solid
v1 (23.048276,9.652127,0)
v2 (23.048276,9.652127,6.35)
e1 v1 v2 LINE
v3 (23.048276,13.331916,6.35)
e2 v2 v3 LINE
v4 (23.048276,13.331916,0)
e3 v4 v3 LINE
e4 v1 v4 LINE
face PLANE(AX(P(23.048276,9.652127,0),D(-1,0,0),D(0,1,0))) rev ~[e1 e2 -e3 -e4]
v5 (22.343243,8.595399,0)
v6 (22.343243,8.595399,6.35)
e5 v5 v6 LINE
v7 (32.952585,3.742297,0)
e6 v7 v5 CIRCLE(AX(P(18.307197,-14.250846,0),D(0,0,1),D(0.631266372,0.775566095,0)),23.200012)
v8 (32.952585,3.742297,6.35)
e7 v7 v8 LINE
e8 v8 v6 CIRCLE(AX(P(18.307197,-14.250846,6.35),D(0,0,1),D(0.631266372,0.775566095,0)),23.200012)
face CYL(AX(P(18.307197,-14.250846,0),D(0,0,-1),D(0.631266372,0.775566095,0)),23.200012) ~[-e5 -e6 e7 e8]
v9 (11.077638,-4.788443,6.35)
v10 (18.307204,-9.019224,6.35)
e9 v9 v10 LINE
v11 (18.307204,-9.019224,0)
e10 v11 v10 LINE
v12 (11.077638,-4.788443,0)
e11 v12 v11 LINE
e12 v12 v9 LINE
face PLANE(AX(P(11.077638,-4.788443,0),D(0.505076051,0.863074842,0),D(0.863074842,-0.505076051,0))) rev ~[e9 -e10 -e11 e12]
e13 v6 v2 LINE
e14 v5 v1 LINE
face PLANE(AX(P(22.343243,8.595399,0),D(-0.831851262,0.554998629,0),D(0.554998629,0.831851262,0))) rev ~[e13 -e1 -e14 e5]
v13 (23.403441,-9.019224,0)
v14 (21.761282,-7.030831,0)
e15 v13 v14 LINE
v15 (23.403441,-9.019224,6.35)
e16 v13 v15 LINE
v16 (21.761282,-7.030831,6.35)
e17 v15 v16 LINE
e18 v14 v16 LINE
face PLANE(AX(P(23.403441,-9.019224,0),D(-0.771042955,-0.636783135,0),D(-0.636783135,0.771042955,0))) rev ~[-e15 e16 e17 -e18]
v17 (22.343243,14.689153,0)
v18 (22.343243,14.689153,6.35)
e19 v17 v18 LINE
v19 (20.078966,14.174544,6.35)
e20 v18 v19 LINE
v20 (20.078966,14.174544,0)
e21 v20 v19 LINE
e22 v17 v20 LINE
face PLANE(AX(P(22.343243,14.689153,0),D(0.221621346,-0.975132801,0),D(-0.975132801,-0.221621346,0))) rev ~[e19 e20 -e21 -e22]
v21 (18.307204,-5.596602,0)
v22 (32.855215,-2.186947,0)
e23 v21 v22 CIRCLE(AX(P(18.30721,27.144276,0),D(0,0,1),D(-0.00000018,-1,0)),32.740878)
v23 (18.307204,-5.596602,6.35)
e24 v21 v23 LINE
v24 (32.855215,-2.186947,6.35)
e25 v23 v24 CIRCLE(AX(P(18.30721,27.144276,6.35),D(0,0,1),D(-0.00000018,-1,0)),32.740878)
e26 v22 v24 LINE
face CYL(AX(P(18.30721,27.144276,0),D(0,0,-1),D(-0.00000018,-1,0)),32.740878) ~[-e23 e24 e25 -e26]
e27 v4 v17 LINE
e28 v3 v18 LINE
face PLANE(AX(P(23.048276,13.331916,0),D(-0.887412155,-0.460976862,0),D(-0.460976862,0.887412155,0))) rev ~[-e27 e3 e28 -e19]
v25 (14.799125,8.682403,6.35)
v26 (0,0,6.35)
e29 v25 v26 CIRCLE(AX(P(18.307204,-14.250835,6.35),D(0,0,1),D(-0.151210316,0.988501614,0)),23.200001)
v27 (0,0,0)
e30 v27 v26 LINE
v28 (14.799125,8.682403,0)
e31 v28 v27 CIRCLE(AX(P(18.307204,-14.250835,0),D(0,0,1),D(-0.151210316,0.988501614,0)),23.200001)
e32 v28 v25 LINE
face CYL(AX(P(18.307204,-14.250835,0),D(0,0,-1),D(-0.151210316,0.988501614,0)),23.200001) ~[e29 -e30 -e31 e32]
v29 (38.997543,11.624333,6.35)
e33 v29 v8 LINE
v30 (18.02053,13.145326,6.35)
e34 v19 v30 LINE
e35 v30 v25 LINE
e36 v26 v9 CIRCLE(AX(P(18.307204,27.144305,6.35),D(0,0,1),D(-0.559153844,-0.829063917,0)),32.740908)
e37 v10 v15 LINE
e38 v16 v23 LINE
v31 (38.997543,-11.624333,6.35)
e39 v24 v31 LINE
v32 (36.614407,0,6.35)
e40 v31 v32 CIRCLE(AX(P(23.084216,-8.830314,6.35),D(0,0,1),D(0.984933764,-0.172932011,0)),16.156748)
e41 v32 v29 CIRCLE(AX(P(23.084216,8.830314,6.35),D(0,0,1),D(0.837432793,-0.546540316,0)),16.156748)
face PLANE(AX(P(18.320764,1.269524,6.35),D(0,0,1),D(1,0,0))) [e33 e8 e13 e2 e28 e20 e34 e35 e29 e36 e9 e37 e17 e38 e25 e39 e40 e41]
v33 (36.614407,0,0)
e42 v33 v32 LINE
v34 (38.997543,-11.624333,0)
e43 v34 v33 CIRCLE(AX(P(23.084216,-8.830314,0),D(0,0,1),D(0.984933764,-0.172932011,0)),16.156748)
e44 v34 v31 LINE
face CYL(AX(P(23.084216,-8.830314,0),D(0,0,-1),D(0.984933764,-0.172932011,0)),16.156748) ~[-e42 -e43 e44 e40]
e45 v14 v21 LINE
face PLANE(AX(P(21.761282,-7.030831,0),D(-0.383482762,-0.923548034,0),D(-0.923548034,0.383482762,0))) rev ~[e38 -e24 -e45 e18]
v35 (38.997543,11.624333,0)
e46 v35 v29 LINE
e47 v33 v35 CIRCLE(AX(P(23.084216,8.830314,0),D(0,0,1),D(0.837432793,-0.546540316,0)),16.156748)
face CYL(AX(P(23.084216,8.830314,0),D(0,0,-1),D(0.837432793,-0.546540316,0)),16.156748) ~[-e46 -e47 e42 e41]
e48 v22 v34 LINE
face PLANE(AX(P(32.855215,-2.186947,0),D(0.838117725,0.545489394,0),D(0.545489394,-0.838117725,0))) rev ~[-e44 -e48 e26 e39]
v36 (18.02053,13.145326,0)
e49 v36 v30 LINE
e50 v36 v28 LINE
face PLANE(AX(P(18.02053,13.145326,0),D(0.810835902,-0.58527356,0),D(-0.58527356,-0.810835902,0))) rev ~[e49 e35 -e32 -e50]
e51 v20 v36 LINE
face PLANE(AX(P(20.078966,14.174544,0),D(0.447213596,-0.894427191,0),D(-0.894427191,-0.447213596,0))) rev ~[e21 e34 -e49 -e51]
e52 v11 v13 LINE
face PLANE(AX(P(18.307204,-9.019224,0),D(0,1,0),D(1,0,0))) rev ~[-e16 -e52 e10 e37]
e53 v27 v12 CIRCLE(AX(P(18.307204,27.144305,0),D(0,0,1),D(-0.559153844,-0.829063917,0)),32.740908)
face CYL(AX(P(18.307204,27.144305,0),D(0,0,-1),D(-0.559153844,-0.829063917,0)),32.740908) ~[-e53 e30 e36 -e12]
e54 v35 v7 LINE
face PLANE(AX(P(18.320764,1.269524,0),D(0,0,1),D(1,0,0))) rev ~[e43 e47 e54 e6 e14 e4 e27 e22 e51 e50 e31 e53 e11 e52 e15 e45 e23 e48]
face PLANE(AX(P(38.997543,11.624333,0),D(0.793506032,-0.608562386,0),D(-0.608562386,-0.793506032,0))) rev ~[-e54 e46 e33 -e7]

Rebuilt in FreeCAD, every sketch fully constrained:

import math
import FreeCAD as App
import Part
import Sketcher
from FreeCAD import Vector
Q = App.Units.Quantity

doc = App.newDocument("Part")
body = doc.addObject("PartDesign::Body", "Body")

# Sketch on XY plane
sketch1 = body.newObject("Sketcher::SketchObject", "Sketch")
sketch1.AttachmentSupport = (doc.getObject("XY_Plane"), [""])
sketch1.MapMode = "FlatFace"
sketch1.addGeometry([
    Part.ArcOfCircle(Part.Circle(Vector(18.3, -14.3, 0), Vector(0, 0, 1), 23.2), math.radians(51), math.radians(80)),  # 0
    Part.LineSegment(Vector(22.3, 8.6, 0), Vector(23, 9.7, 0)),  # 1
    Part.LineSegment(Vector(23, 9.7, 0), Vector(23, 13.3, 0)),  # 2
    Part.LineSegment(Vector(23, 13.3, 0), Vector(22.3, 14.7, 0)),  # 3
    Part.LineSegment(Vector(22.3, 14.7, 0), Vector(20.1, 14.2, 0)),  # 4
    Part.LineSegment(Vector(20.1, 14.2, 0), Vector(18, 13.1, 0)),  # 5
    Part.LineSegment(Vector(18, 13.1, 0), Vector(14.8, 8.7, 0)),  # 6
    Part.ArcOfCircle(Part.Circle(Vector(18.3, -14.3, 0), Vector(0, 0, 1), 23.2), math.radians(99), math.radians(142)),  # 7
    Part.ArcOfCircle(Part.Circle(Vector(18.3, 27.1, 0), Vector(0, 0, 1), 32.7), math.radians(-124), math.radians(-103)),  # 8
    Part.LineSegment(Vector(11.1, -4.8, 0), Vector(18.3, -9, 0)),  # 9
    Part.LineSegment(Vector(18.3, -9, 0), Vector(23.4, -9, 0)),  # 10
    Part.LineSegment(Vector(23.4, -9, 0), Vector(21.8, -7, 0)),  # 11
    Part.LineSegment(Vector(21.8, -7, 0), Vector(18.3, -5.6, 0)),  # 12
    Part.ArcOfCircle(Part.Circle(Vector(18.3, 27.1, 0), Vector(0, 0, 1), 32.7), math.radians(-90), math.radians(-64)),  # 13
    Part.LineSegment(Vector(32.9, -2.2, 0), Vector(39, -11.6, 0)),  # 14
    Part.ArcOfCircle(Part.Circle(Vector(23.1, -8.8, 0), Vector(0, 0, 1), 16.2), math.radians(-10), math.radians(33)),  # 15
    Part.ArcOfCircle(Part.Circle(Vector(23.1, 8.8, 0), Vector(0, 0, 1), 16.2), math.radians(-33), math.radians(10)),  # 16
    Part.LineSegment(Vector(39, 11.6, 0), Vector(33, 3.7, 0)),  # 17
], False)
sketch1.addConstraint([
    Sketcher.Constraint("Coincident", 0, 2, 1, 1),
    Sketcher.Constraint("Coincident", 1, 2, 2, 1),
    Sketcher.Constraint("Coincident", 2, 2, 3, 1),
    Sketcher.Constraint("Coincident", 3, 2, 4, 1),
    Sketcher.Constraint("Coincident", 4, 2, 5, 1),
    Sketcher.Constraint("Coincident", 5, 2, 6, 1),
    Sketcher.Constraint("Coincident", 6, 2, 7, 1),
    Sketcher.Constraint("Coincident", 7, 2, 8, 1),
    Sketcher.Constraint("Coincident", 8, 2, 9, 1),
    Sketcher.Constraint("Coincident", 9, 2, 10, 1),
    Sketcher.Constraint("Coincident", 10, 2, 11, 1),
    Sketcher.Constraint("Coincident", 11, 2, 12, 1),
    Sketcher.Constraint("Coincident", 12, 2, 13, 1),
    Sketcher.Constraint("Coincident", 13, 2, 14, 1),
    Sketcher.Constraint("Coincident", 14, 2, 15, 1),
    Sketcher.Constraint("Coincident", 15, 2, 16, 1),
    Sketcher.Constraint("Coincident", 16, 2, 17, 1),
    Sketcher.Constraint("Coincident", 17, 2, 0, 1),
    Sketcher.Constraint("Vertical", 2),
    Sketcher.Constraint("Horizontal", 10),
    Sketcher.Constraint("Coincident", 7, 2, -1, 1),
    Sketcher.Constraint("Equal", 15, 16),
    Sketcher.Constraint("Symmetric", 15, 3, 16, 3, -1),
    Sketcher.Constraint("Vertical", 7, 3, 8, 3),
    Sketcher.Constraint("Vertical", 0, 2, 3, 2),
    Sketcher.Constraint("Vertical", 8, 3, 9, 2),
    Sketcher.Constraint("Vertical", 9, 2, 12, 2),
    Sketcher.Constraint("Vertical", 14, 2, 16, 2),
    Sketcher.Constraint("Radius", 7, Q("23.200001 mm")),
    Sketcher.Constraint("Radius", 13, Q("32.740878 mm")),
    Sketcher.Constraint("Radius", 0, Q("23.200012 mm")),
    Sketcher.Constraint("Radius", 8, Q("32.740908 mm")),
    Sketcher.Constraint("Radius", 15, Q("16.156748 mm")),
    Sketcher.Constraint("DistanceX", 8, 2, 15, 3, Q("0.4726999 in")),
    Sketcher.Constraint("Distance", 5, Q("2.301401 mm")),
    Sketcher.Constraint("Distance", 6, Q("5.504101 mm")),
    Sketcher.Constraint("DistanceY", 2, 1, 2, 2, Q("3.679789 mm")),
    Sketcher.Constraint("DistanceY", -1, 1, 0, 2, Q("8.595399 mm")),
    Sketcher.Constraint("DistanceY", 16, 3, 2, 2, Q("4.501602 mm")),
    Sketcher.Constraint("DistanceY", 1, 2, 5, 2, Q("3.493199 mm")),
    Sketcher.Constraint("DistanceX", 15, 3, 13, 2, Q("9.770999 mm")),
    Sketcher.Constraint("Distance", 4, Q("2.322019 mm")),
    Sketcher.Constraint("Distance", 12, Q("3.740009 mm")),
    Sketcher.Constraint("DistanceX", 10, 1, 10, 2, Q("5.096237 mm")),
    Sketcher.Constraint("DistanceX", -1, 1, 13, 3, Q("18.30721 mm")),
    Sketcher.Constraint("DistanceX", -1, 1, 5, 2, Q("18.02053 mm")),
    Sketcher.Constraint("DistanceX", -1, 1, 10, 2, Q("23.403441 mm")),
    Sketcher.Constraint("DistanceY", 11, 2, -1, 1, Q("7.030831 mm")),
    Sketcher.Constraint("DistanceY", 0, 3, 8, 3, Q("41.395151 mm")),
    Sketcher.Constraint("DistanceY", 7, 3, 13, 3, Q("41.395112 mm")),
    Sketcher.Constraint("DistanceY", 7, 3, 15, 3, Q("5.420521 mm")),
    Sketcher.Constraint("DistanceX", 0, 3, 15, 3, Q("4.777019 mm")),
    Sketcher.Constraint("DistanceX", 8, 3, 0, 2, Q("4.036039 mm")),
    Sketcher.Constraint("DistanceX", 1, 2, 16, 3, Q("0.03594 mm")),
    Sketcher.Constraint("DistanceY", 16, 3, 3, 2, Q("5.858839 mm")),
    Sketcher.Constraint("DistanceY", 9, 2, 15, 3, Q("0.18891 mm")),
    Sketcher.Constraint("DistanceX", 13, 2, 14, 2, Q("6.142328 mm")),
    Sketcher.Constraint("DistanceX", 13, 2, 17, 2, Q("0.09737 mm")),
])
pad1 = body.newObject("PartDesign::Pad", "Pad")
pad1.Profile = sketch1
pad1.Length = Q("0.25 in")

doc.recompute()
